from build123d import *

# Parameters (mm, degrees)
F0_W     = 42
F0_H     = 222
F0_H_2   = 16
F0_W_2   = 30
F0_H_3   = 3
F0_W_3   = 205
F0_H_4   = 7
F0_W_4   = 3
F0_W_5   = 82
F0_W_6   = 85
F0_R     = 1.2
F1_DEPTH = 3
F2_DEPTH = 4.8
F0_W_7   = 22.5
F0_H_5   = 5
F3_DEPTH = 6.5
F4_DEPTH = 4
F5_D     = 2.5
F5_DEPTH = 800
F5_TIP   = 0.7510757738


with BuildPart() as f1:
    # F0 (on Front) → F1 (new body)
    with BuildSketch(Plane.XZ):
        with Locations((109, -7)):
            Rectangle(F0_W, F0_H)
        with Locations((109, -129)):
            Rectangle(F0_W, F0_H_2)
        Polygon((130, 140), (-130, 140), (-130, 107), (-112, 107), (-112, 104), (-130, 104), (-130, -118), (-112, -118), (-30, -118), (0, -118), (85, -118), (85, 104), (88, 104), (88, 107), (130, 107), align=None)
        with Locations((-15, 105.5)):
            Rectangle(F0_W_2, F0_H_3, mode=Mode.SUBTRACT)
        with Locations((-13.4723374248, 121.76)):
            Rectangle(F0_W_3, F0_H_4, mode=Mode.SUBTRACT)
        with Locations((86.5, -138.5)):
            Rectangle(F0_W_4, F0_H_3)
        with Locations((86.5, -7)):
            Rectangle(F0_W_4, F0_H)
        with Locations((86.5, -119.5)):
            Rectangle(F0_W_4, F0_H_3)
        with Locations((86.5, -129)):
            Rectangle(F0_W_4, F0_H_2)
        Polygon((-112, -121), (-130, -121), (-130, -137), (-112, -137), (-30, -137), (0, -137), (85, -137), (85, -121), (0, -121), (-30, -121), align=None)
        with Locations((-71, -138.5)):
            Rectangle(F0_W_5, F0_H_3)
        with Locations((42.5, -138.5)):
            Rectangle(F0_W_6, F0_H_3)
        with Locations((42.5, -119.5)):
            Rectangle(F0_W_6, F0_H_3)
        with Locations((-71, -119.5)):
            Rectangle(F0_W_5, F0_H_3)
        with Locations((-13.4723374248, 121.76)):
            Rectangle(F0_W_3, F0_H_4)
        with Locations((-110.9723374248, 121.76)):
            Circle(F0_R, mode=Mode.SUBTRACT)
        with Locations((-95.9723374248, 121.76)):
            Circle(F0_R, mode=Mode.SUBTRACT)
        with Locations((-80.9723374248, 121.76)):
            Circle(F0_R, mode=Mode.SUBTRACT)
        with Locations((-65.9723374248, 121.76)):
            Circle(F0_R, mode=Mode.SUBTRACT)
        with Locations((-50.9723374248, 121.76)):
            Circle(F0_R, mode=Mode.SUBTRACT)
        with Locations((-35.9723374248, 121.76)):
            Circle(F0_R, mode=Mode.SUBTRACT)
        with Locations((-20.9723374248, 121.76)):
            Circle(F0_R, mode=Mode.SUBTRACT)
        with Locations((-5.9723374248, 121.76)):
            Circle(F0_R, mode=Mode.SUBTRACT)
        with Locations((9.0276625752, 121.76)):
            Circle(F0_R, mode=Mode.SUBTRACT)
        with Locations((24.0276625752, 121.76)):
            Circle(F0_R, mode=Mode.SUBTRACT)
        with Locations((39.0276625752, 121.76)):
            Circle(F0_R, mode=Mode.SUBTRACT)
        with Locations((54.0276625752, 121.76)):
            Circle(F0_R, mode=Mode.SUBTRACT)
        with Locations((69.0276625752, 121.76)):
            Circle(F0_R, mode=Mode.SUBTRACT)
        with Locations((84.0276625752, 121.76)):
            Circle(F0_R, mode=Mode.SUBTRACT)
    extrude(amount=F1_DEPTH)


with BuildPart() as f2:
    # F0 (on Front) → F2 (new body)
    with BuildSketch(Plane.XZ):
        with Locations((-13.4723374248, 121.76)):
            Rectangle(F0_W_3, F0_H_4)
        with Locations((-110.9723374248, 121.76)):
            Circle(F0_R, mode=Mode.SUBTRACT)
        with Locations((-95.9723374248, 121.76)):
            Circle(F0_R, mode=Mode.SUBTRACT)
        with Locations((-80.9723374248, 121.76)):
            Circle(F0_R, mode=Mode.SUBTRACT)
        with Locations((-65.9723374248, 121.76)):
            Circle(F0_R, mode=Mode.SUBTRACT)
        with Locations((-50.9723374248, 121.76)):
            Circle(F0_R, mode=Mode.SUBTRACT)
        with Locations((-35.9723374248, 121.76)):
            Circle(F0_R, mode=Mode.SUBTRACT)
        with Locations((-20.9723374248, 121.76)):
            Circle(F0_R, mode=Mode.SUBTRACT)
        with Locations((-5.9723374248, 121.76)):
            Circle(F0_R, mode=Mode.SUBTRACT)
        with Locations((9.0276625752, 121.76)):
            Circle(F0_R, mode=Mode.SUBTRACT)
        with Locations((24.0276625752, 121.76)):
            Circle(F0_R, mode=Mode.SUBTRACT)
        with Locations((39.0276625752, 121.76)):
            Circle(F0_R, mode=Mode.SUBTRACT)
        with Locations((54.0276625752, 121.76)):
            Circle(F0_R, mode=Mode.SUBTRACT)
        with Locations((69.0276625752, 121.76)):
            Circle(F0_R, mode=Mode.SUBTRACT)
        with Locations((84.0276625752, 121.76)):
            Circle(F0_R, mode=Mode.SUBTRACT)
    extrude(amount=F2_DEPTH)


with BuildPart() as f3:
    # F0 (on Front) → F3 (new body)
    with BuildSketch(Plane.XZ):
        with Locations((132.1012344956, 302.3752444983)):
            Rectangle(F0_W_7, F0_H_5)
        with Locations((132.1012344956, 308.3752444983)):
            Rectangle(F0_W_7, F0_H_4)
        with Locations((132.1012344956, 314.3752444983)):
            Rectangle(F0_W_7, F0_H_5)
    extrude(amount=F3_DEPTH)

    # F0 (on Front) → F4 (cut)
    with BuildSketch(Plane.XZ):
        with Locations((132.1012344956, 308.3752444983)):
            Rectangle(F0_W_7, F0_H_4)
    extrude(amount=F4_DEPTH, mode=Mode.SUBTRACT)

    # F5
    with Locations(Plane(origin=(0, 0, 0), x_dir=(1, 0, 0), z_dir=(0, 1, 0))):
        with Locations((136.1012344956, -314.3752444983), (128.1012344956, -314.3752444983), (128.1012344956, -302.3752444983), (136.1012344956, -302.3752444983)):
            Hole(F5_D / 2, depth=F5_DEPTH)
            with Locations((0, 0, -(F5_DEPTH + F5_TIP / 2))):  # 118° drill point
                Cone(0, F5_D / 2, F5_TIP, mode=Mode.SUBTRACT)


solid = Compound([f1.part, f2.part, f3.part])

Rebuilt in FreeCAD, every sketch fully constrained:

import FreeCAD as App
import Part
import Sketcher
from FreeCAD import Vector

doc = App.newDocument("Part")
body = doc.addObject("PartDesign::Body", "Body")

# Sketch on XZ plane
sketch1 = body.newObject("Sketcher::SketchObject", "Sketch")
sketch1.AttachmentSupport = (doc.getObject("XZ_Plane"), [""])
sketch1.MapMode = "FlatFace"
sketch1.addGeometry([
    Part.LineSegment(Vector(130, -118, 0), Vector(130, 104, 0)),  # 0
    Part.LineSegment(Vector(130, 104, 0), Vector(88, 104, 0)),  # 1
    Part.LineSegment(Vector(88, 104, 0), Vector(88, 107, 0)),  # 2
    Part.LineSegment(Vector(88, 107, 0), Vector(130, 107, 0)),  # 3
    Part.LineSegment(Vector(130, 107, 0), Vector(130, 140, 0)),  # 4
    Part.LineSegment(Vector(130, 140, 0), Vector(-130, 140, 0)),  # 5
    Part.LineSegment(Vector(-130, 140, 0), Vector(-130, 107, 0)),  # 6
    Part.LineSegment(Vector(-130, 107, 0), Vector(-112, 107, 0)),  # 7
    Part.LineSegment(Vector(-112, 107, 0), Vector(-112, 104, 0)),  # 8
    Part.LineSegment(Vector(-112, 104, 0), Vector(-130, 104, 0)),  # 9
    Part.LineSegment(Vector(-130, 104, 0), Vector(-130, -118, 0)),  # 10
    Part.LineSegment(Vector(-130, -118, 0), Vector(-112, -118, 0)),  # 11
    Part.LineSegment(Vector(-112, -118, 0), Vector(-112, -121, 0)),  # 12
    Part.LineSegment(Vector(-112, -121, 0), Vector(-130, -121, 0)),  # 13
    Part.LineSegment(Vector(-130, -121, 0), Vector(-130, -137, 0)),  # 14
    Part.LineSegment(Vector(-130, -137, 0), Vector(-112, -137, 0)),  # 15
    Part.LineSegment(Vector(-112, -137, 0), Vector(-112, -140, 0)),  # 16
    Part.LineSegment(Vector(-112, -140, 0), Vector(-30, -140, 0)),  # 17
    Part.LineSegment(Vector(-30, -140, 0), Vector(-30, -137, 0)),  # 18
    Part.LineSegment(Vector(-30, -137, 0), Vector(0, -137, 0)),  # 19
    Part.LineSegment(Vector(0, -137, 0), Vector(0, -140, 0)),  # 20
    Part.LineSegment(Vector(0, -140, 0), Vector(88, -140, 0)),  # 21
    Part.LineSegment(Vector(88, -140, 0), Vector(88, -137, 0)),  # 22
    Part.LineSegment(Vector(88, -137, 0), Vector(130, -137, 0)),  # 23
    Part.LineSegment(Vector(130, -137, 0), Vector(130, -121, 0)),  # 24
    Part.LineSegment(Vector(130, -121, 0), Vector(88, -121, 0)),  # 25
    Part.LineSegment(Vector(88, -121, 0), Vector(88, -118, 0)),  # 26
    Part.LineSegment(Vector(88, -118, 0), Vector(130, -118, 0)),  # 27
    Part.LineSegment(Vector(-30, -118, 0), Vector(0, -118, 0)),  # 28
    Part.LineSegment(Vector(0, -118, 0), Vector(0, -121, 0)),  # 29
    Part.LineSegment(Vector(0, -121, 0), Vector(-30, -121, 0)),  # 30
    Part.LineSegment(Vector(-30, -121, 0), Vector(-30, -118, 0)),  # 31
    Part.Circle(Vector(-110.972337, 121.76, 0), Vector(0, 0, 1), 1.2),  # 32
    Part.Circle(Vector(-95.972337, 121.76, 0), Vector(0, 0, 1), 1.2),  # 33
    Part.Circle(Vector(-80.972337, 121.76, 0), Vector(0, 0, 1), 1.2),  # 34
    Part.Circle(Vector(-65.972337, 121.76, 0), Vector(0, 0, 1), 1.2),  # 35
    Part.Circle(Vector(-50.972337, 121.76, 0), Vector(0, 0, 1), 1.2),  # 36
    Part.LineSegment(Vector(0, 104, 0), Vector(-30, 104, 0)),  # 37
    Part.LineSegment(Vector(-30, 104, 0), Vector(-30, 107, 0)),  # 38
    Part.LineSegment(Vector(-30, 107, 0), Vector(0, 107, 0)),  # 39
    Part.LineSegment(Vector(0, 107, 0), Vector(0, 104, 0)),  # 40
    Part.Circle(Vector(-35.972337, 121.76, 0), Vector(0, 0, 1), 1.2),  # 41
    Part.Circle(Vector(-20.972337, 121.76, 0), Vector(0, 0, 1), 1.2),  # 42
    Part.Circle(Vector(-5.972337, 121.76, 0), Vector(0, 0, 1), 1.2),  # 43
    Part.Circle(Vector(9.027663, 121.76, 0), Vector(0, 0, 1), 1.2),  # 44
    Part.Circle(Vector(24.027663, 121.76, 0), Vector(0, 0, 1), 1.2),  # 45
    Part.Circle(Vector(39.027663, 121.76, 0), Vector(0, 0, 1), 1.2),  # 46
    Part.Circle(Vector(54.027663, 121.76, 0), Vector(0, 0, 1), 1.2),  # 47
    Part.Circle(Vector(69.027663, 121.76, 0), Vector(0, 0, 1), 1.2),  # 48
    Part.Circle(Vector(84.027663, 121.76, 0), Vector(0, 0, 1), 1.2),  # 49
], False)
sketch1.addConstraint([
    Sketcher.Constraint("Coincident", 0, 2, 1, 1),
    Sketcher.Constraint("Coincident", 1, 2, 2, 1),
    Sketcher.Constraint("Coincident", 2, 2, 3, 1),
    Sketcher.Constraint("Coincident", 3, 2, 4, 1),
    Sketcher.Constraint("Coincident", 4, 2, 5, 1),
    Sketcher.Constraint("Coincident", 5, 2, 6, 1),
    Sketcher.Constraint("Coincident", 6, 2, 7, 1),
    Sketcher.Constraint("Coincident", 7, 2, 8, 1),
    Sketcher.Constraint("Coincident", 8, 2, 9, 1),
    Sketcher.Constraint("Coincident", 9, 2, 10, 1),
    Sketcher.Constraint("Coincident", 10, 2, 11, 1),
    Sketcher.Constraint("Coincident", 11, 2, 12, 1),
    Sketcher.Constraint("Coincident", 12, 2, 13, 1),
    Sketcher.Constraint("Coincident", 13, 2, 14, 1),
    Sketcher.Constraint("Coincident", 14, 2, 15, 1),
    Sketcher.Constraint("Coincident", 15, 2, 16, 1),
    Sketcher.Constraint("Coincident", 16, 2, 17, 1),
    Sketcher.Constraint("Coincident", 17, 2, 18, 1),
    Sketcher.Constraint("Coincident", 18, 2, 19, 1),
    Sketcher.Constraint("Coincident", 19, 2, 20, 1),
    Sketcher.Constraint("Coincident", 20, 2, 21, 1),
    Sketcher.Constraint("Coincident", 21, 2, 22, 1),
    Sketcher.Constraint("Coincident", 22, 2, 23, 1),
    Sketcher.Constraint("Coincident", 23, 2, 24, 1),
    Sketcher.Constraint("Coincident", 24, 2, 25, 1),
    Sketcher.Constraint("Coincident", 25, 2, 26, 1),
    Sketcher.Constraint("Coincident", 26, 2, 27, 1),
    Sketcher.Constraint("Coincident", 27, 2, 0, 1),
    Sketcher.Constraint("Coincident", 28, 2, 29, 1),
    Sketcher.Constraint("Coincident", 29, 2, 30, 1),
    Sketcher.Constraint("Coincident", 30, 2, 31, 1),
    Sketcher.Constraint("Coincident", 31, 2, 28, 1),
    Sketcher.Constraint("Coincident", 37, 2, 38, 1),
    Sketcher.Constraint("Coincident", 38, 2, 39, 1),
    Sketcher.Constraint("Coincident", 39, 2, 40, 1),
    Sketcher.Constraint("Coincident", 40, 2, 37, 1),
    Sketcher.Constraint("Vertical", 0),
    Sketcher.Constraint("Horizontal", 1),
    Sketcher.Constraint("Vertical", 2),
    Sketcher.Constraint("Horizontal", 3),
    Sketcher.Constraint("Vertical", 4),
    Sketcher.Constraint("Horizontal", 5),
    Sketcher.Constraint("Vertical", 6),
    Sketcher.Constraint("Horizontal", 7),
    Sketcher.Constraint("Vertical", 8),
    Sketcher.Constraint("Horizontal", 9),
    Sketcher.Constraint("Vertical", 10),
    Sketcher.Constraint("Horizontal", 11),
    Sketcher.Constraint("Vertical", 12),
    Sketcher.Constraint("Horizontal", 13),
    Sketcher.Constraint("Vertical", 14),
    Sketcher.Constraint("Horizontal", 15),
    Sketcher.Constraint("Vertical", 16),
    Sketcher.Constraint("Horizontal", 17),
    Sketcher.Constraint("Vertical", 18),
    Sketcher.Constraint("Horizontal", 19),
    Sketcher.Constraint("Vertical", 20),
    Sketcher.Constraint("Horizontal", 21),
    Sketcher.Constraint("Vertical", 22),
    Sketcher.Constraint("Horizontal", 23),
    Sketcher.Constraint("Vertical", 24),
    Sketcher.Constraint("Horizontal", 25),
    Sketcher.Constraint("Vertical", 26),
    Sketcher.Constraint("Horizontal", 27),
    Sketcher.Constraint("Horizontal", 28),
    Sketcher.Constraint("Vertical", 29),
    Sketcher.Constraint("Horizontal", 30),
    Sketcher.Constraint("Vertical", 31),
    Sketcher.Constraint("Horizontal", 37),
    Sketcher.Constraint("Vertical", 38),
    Sketcher.Constraint("Horizontal", 39),
    Sketcher.Constraint("Vertical", 40),
    Sketcher.Constraint("Equal", 32, 33),
    Sketcher.Constraint("Equal", 33, 34),
    Sketcher.Constraint("Equal", 34, 35),
    Sketcher.Constraint("Equal", 35, 36),
    Sketcher.Constraint("Equal", 36, 41),
    Sketcher.Constraint("Equal", 41, 42),
    Sketcher.Constraint("Equal", 42, 43),
    Sketcher.Constraint("Equal", 43, 44),
    Sketcher.Constraint("Equal", 44, 45),
    Sketcher.Constraint("Equal", 45, 46),
    Sketcher.Constraint("Equal", 46, 47),
    Sketcher.Constraint("Equal", 47, 48),
    Sketcher.Constraint("Equal", 48, 49),
    Sketcher.Constraint("Symmetric", 3, 2, 6, 2, -2),
    Sketcher.Constraint("Symmetric", 0, 2, 9, 2, -2),
    Sketcher.Constraint("Symmetric", 14, 2, 23, 2, -2),
    Sketcher.Constraint("PointOnObject", 19, 2, -2),
    Sketcher.Constraint("PointOnObject", 28, 2, -2),
    Sketcher.Constraint("PointOnObject", 39, 2, -2),
    Sketcher.Constraint("Horizontal", 32, 3, 33, 3),
    Sketcher.Constraint("Horizontal", 33, 3, 34, 3),
    Sketcher.Constraint("Horizontal", 34, 3, 35, 3),
    Sketcher.Constraint("Horizontal", 35, 3, 36, 3),
    Sketcher.Constraint("Horizontal", 36, 3, 41, 3),
    Sketcher.Constraint("Horizontal", 41, 3, 42, 3),
    Sketcher.Constraint("Horizontal", 42, 3, 43, 3),
    Sketcher.Constraint("Horizontal", 43, 3, 44, 3),
    Sketcher.Constraint("Horizontal", 44, 3, 45, 3),
    Sketcher.Constraint("Horizontal", 45, 3, 46, 3),
    Sketcher.Constraint("Horizontal", 46, 3, 47, 3),
    Sketcher.Constraint("Horizontal", 47, 3, 48, 3),
    Sketcher.Constraint("Horizontal", 48, 3, 49, 3),
    Sketcher.Constraint("Horizontal", 15, 2, 18, 2),
    Sketcher.Constraint("Horizontal", 17, 2, 20, 2),
    Sketcher.Constraint("Horizontal", 13, 2, 24, 2),
    Sketcher.Constraint("Horizontal", 11, 2, 26, 2),
    Sketcher.Constraint("Horizontal", 27, 2, 28, 2),
    Sketcher.Constraint("Horizontal", 25, 2, 29, 2),
    Sketcher.Constraint("Horizontal", 9, 2, 37, 2),
    Sketcher.Constraint("Horizontal", 7, 2, 38, 2),
    Sketcher.Constraint("Vertical", 0, 2, 3, 2),
    Sketcher.Constraint("Vertical", 8, 2, 11, 2),
    Sketcher.Constraint("Vertical", 10, 2, 13, 2),
    Sketcher.Constraint("Vertical", 12, 2, 15, 2),
    Sketcher.Constraint("Vertical", 2, 2, 21, 2),
    Sketcher.Constraint("Vertical", 22, 2, 25, 2),
    Sketcher.Constraint("Vertical", 18, 2, 30, 2),
    Sketcher.Constraint("Vertical", 31, 2, 37, 2),
    Sketcher.Constraint("Equal", 8, 12),
    Sketcher.Constraint("Equal", 12, 16),
    Sketcher.Constraint("Diameter", 32, 2.4),
    Sketcher.Constraint("DistanceX", 1, 2, 1, 1, 42.0),
    Sketcher.Constraint("DistanceX", 5, 2, 5, 1, 260.0),
    Sketcher.Constraint("DistanceX", 7, 1, 7, 2, 18.0),
    Sketcher.Constraint("DistanceX", 17, 1, 17, 2, 82.0),
    Sketcher.Constraint("DistanceY", 0, 1, 0, 2, 222.0),
    Sketcher.Constraint("DistanceY", 2, 1, 2, 2, 3.0),
    Sketcher.Constraint("DistanceY", 4, 1, 4, 2, 33.0),
    Sketcher.Constraint("DistanceY", 14, 2, 14, 1, 16.0),
    Sketcher.Constraint("DistanceY", -1, 1, 0, 2, 104.0),
    Sketcher.Constraint("DistanceX", 32, 3, 33, 3, 15.0),
    Sketcher.Constraint("DistanceX", 33, 3, 34, 3, 15.0),
    Sketcher.Constraint("DistanceX", 34, 3, 35, 3, 15.0),
    Sketcher.Constraint("DistanceX", 35, 3, 36, 3, 15.0),
    Sketcher.Constraint("DistanceX", 36, 3, 41, 3, 15.0),
    Sketcher.Constraint("DistanceX", 41, 3, 42, 3, 15.0),
    Sketcher.Constraint("DistanceX", 42, 3, 43, 3, 15.0),
    Sketcher.Constraint("DistanceX", 43, 3, 44, 3, 15.0),
    Sketcher.Constraint("DistanceX", 44, 3, 45, 3, 15.0),
    Sketcher.Constraint("DistanceX", 45, 3, 46, 3, 15.0),
    Sketcher.Constraint("DistanceX", 46, 3, 47, 3, 15.0),
    Sketcher.Constraint("DistanceX", 47, 3, 48, 3, 15.0),
    Sketcher.Constraint("DistanceX", 48, 3, 49, 3, 15.0),
    Sketcher.Constraint("DistanceY", -1, 1, 32, 3, 121.76),
    Sketcher.Constraint("DistanceX", 32, 3, -1, 1, 110.972337),
])
pad1 = body.newObject("PartDesign::Pad", "Pad")
pad1.Profile = sketch1
pad1.Length = 3
body2 = doc.addObject("PartDesign::Body", "Body001")

# Sketch on XZ plane
sketch2 = body2.newObject("Sketcher::SketchObject", "Sketch001")
sketch2.AttachmentSupport = (doc.getObject("XZ_Plane001"), [""])
sketch2.MapMode = "FlatFace"
sketch2.addGeometry([
    Part.LineSegment(Vector(-115.972337, 125.26, 0), Vector(-115.972337, 118.26, 0)),  # 0
    Part.LineSegment(Vector(-115.972337, 118.26, 0), Vector(89.027663, 118.26, 0)),  # 1
    Part.LineSegment(Vector(89.027663, 118.26, 0), Vector(89.027663, 125.26, 0)),  # 2
    Part.LineSegment(Vector(89.027663, 125.26, 0), Vector(-115.972337, 125.26, 0)),  # 3
    Part.Circle(Vector(-110.972337, 121.76, 0), Vector(0, 0, 1), 1.2),  # 4
    Part.Circle(Vector(-95.972337, 121.76, 0), Vector(0, 0, 1), 1.2),  # 5
    Part.Circle(Vector(-80.972337, 121.76, 0), Vector(0, 0, 1), 1.2),  # 6
    Part.Circle(Vector(-65.972337, 121.76, 0), Vector(0, 0, 1), 1.2),  # 7
    Part.Circle(Vector(-50.972337, 121.76, 0), Vector(0, 0, 1), 1.2),  # 8
    Part.Circle(Vector(-35.972337, 121.76, 0), Vector(0, 0, 1), 1.2),  # 9
    Part.Circle(Vector(-20.972337, 121.76, 0), Vector(0, 0, 1), 1.2),  # 10
    Part.Circle(Vector(-5.972337, 121.76, 0), Vector(0, 0, 1), 1.2),  # 11
    Part.Circle(Vector(9.027663, 121.76, 0), Vector(0, 0, 1), 1.2),  # 12
    Part.Circle(Vector(24.027663, 121.76, 0), Vector(0, 0, 1), 1.2),  # 13
    Part.Circle(Vector(39.027663, 121.76, 0), Vector(0, 0, 1), 1.2),  # 14
    Part.Circle(Vector(54.027663, 121.76, 0), Vector(0, 0, 1), 1.2),  # 15
    Part.Circle(Vector(69.027663, 121.76, 0), Vector(0, 0, 1), 1.2),  # 16
    Part.Circle(Vector(84.027663, 121.76, 0), Vector(0, 0, 1), 1.2),  # 17
], False)
sketch2.addConstraint([
    Sketcher.Constraint("Coincident", 0, 2, 1, 1),
    Sketcher.Constraint("Coincident", 1, 2, 2, 1),
    Sketcher.Constraint("Coincident", 2, 2, 3, 1),
    Sketcher.Constraint("Coincident", 3, 2, 0, 1),
    Sketcher.Constraint("Vertical", 0),
    Sketcher.Constraint("Horizontal", 1),
    Sketcher.Constraint("Vertical", 2),
    Sketcher.Constraint("Horizontal", 3),
    Sketcher.Constraint("Equal", 4, 5),
    Sketcher.Constraint("Equal", 5, 6),
    Sketcher.Constraint("Equal", 6, 7),
    Sketcher.Constraint("Equal", 7, 8),
    Sketcher.Constraint("Equal", 8, 9),
    Sketcher.Constraint("Equal", 9, 10),
    Sketcher.Constraint("Equal", 10, 11),
    Sketcher.Constraint("Equal", 11, 12),
    Sketcher.Constraint("Equal", 12, 13),
    Sketcher.Constraint("Equal", 13, 14),
    Sketcher.Constraint("Equal", 14, 15),
    Sketcher.Constraint("Equal", 15, 16),
    Sketcher.Constraint("Equal", 16, 17),
    Sketcher.Constraint("Horizontal", 4, 3, 5, 3),
    Sketcher.Constraint("Horizontal", 5, 3, 6, 3),
    Sketcher.Constraint("Horizontal", 6, 3, 7, 3),
    Sketcher.Constraint("Horizontal", 7, 3, 8, 3),
    Sketcher.Constraint("Horizontal", 8, 3, 9, 3),
    Sketcher.Constraint("Horizontal", 9, 3, 10, 3),
    Sketcher.Constraint("Horizontal", 10, 3, 11, 3),
    Sketcher.Constraint("Horizontal", 11, 3, 12, 3),
    Sketcher.Constraint("Horizontal", 12, 3, 13, 3),
    Sketcher.Constraint("Horizontal", 13, 3, 14, 3),
    Sketcher.Constraint("Horizontal", 14, 3, 15, 3),
    Sketcher.Constraint("Horizontal", 15, 3, 16, 3),
    Sketcher.Constraint("Horizontal", 16, 3, 17, 3),
    Sketcher.Constraint("Diameter", 4, 2.4),
    Sketcher.Constraint("DistanceX", 1, 1, 1, 2, 205.0),
    Sketcher.Constraint("DistanceY", 0, 2, 0, 1, 7.0),
    Sketcher.Constraint("DistanceX", 4, 3, 5, 3, 15.0),
    Sketcher.Constraint("DistanceX", 5, 3, 6, 3, 15.0),
    Sketcher.Constraint("DistanceX", 6, 3, 7, 3, 15.0),
    Sketcher.Constraint("DistanceX", 7, 3, 8, 3, 15.0),
    Sketcher.Constraint("DistanceX", 8, 3, 9, 3, 15.0),
    Sketcher.Constraint("DistanceX", 9, 3, 10, 3, 15.0),
    Sketcher.Constraint("DistanceX", 10, 3, 11, 3, 15.0),
    Sketcher.Constraint("DistanceX", 11, 3, 12, 3, 15.0),
    Sketcher.Constraint("DistanceX", 12, 3, 13, 3, 15.0),
    Sketcher.Constraint("DistanceX", 13, 3, 14, 3, 15.0),
    Sketcher.Constraint("DistanceX", 14, 3, 15, 3, 15.0),
    Sketcher.Constraint("DistanceX", 15, 3, 16, 3, 15.0),
    Sketcher.Constraint("DistanceX", 16, 3, 17, 3, 15.0),
    Sketcher.Constraint("DistanceX", 0, 2, 4, 3, 5.0),
    Sketcher.Constraint("DistanceY", 0, 2, 4, 3, 3.5),
    Sketcher.Constraint("DistanceY", -1, 1, 4, 3, 121.76),
    Sketcher.Constraint("DistanceX", 4, 3, -1, 1, 110.972337),
])
pad2 = body2.newObject("PartDesign::Pad", "Pad001")
pad2.Profile = sketch2
pad2.Length = 4.8
body3 = doc.addObject("PartDesign::Body", "Body002")

# Sketch on XZ plane
sketch3 = body3.newObject("Sketcher::SketchObject", "Sketch002")
sketch3.AttachmentSupport = (doc.getObject("XZ_Plane002"), [""])
sketch3.MapMode = "FlatFace"
sketch3.addGeometry([
    Part.LineSegment(Vector(120.851234, 299.875244, 0), Vector(143.351234, 299.875244, 0)),
    Part.LineSegment(Vector(143.351234, 299.875244, 0), Vector(143.351234, 316.875244, 0)),
    Part.LineSegment(Vector(143.351234, 316.875244, 0), Vector(120.851234, 316.875244, 0)),
    Part.LineSegment(Vector(120.851234, 316.875244, 0), Vector(120.851234, 299.875244, 0)),
], False)
sketch3.addConstraint([
    Sketcher.Constraint("Coincident", 0, 2, 1, 1),
    Sketcher.Constraint("Coincident", 1, 2, 2, 1),
    Sketcher.Constraint("Coincident", 2, 2, 3, 1),
    Sketcher.Constraint("Coincident", 3, 2, 0, 1),
    Sketcher.Constraint("Horizontal", 0),
    Sketcher.Constraint("Vertical", 1),
    Sketcher.Constraint("Horizontal", 2),
    Sketcher.Constraint("Vertical", 3),
    Sketcher.Constraint("DistanceY", 1, 1, 1, 2, 17.0),
    Sketcher.Constraint("DistanceX", 0, 1, 0, 2, 22.5),
    Sketcher.Constraint("DistanceX", -1, 1, 0, 2, 143.351234),
    Sketcher.Constraint("DistanceY", -1, 1, 0, 2, 299.875244),
])
pad3 = body3.newObject("PartDesign::Pad", "Pad002")
pad3.Profile = sketch3
pad3.Length = 6.5

# Sketch on XZ plane
sketch4 = body3.newObject("Sketcher::SketchObject", "Sketch003")
sketch4.AttachmentSupport = (doc.getObject("XZ_Plane002"), [""])
sketch4.MapMode = "FlatFace"
sketch4.addGeometry([
    Part.LineSegment(Vector(120.851234, 311.875244, 0), Vector(120.851234, 304.875244, 0)),
    Part.LineSegment(Vector(120.851234, 304.875244, 0), Vector(143.351234, 304.875244, 0)),
    Part.LineSegment(Vector(143.351234, 304.875244, 0), Vector(143.351234, 311.875244, 0)),
    Part.LineSegment(Vector(143.351234, 311.875244, 0), Vector(120.851234, 311.875244, 0)),
], False)
sketch4.addConstraint([
    Sketcher.Constraint("Coincident", 0, 2, 1, 1),
    Sketcher.Constraint("Coincident", 1, 2, 2, 1),
    Sketcher.Constraint("Coincident", 2, 2, 3, 1),
    Sketcher.Constraint("Coincident", 3, 2, 0, 1),
    Sketcher.Constraint("Vertical", 0),
    Sketcher.Constraint("Horizontal", 1),
    Sketcher.Constraint("Vertical", 2),
    Sketcher.Constraint("Horizontal", 3),
    Sketcher.Constraint("DistanceY", 0, 2, 0, 1, 7.0),
    Sketcher.Constraint("DistanceX", 1, 1, 1, 2, 22.5),
    Sketcher.Constraint("DistanceX", -1, 1, 0, 2, 120.851234),
    Sketcher.Constraint("DistanceY", -1, 1, 0, 2, 304.875244),
])
pocket1 = body3.newObject("PartDesign::Pocket", "Pocket")
pocket1.Profile = sketch4
pocket1.Length = 4
pocket1.Reversed = True

# Sketch on XZ plane
sketch5 = body3.newObject("Sketcher::SketchObject", "Sketch004")
sketch5.AttachmentSupport = (doc.getObject("XZ_Plane002"), [""])
sketch5.MapMode = "FlatFace"
sketch5.addGeometry([
    Part.Circle(Vector(136.101234, 314.375244, 0), Vector(0, 0, 1), 1.25),
    Part.Circle(Vector(128.101234, 314.375244, 0), Vector(0, 0, 1), 1.25),
    Part.Circle(Vector(128.101234, 302.375244, 0), Vector(0, 0, 1), 1.25),
    Part.Circle(Vector(136.101234, 302.375244, 0), Vector(0, 0, 1), 1.25),
], False)
sketch5.addConstraint([
    Sketcher.Constraint("Equal", 0, 1),
    Sketcher.Constraint("Equal", 1, 2),
    Sketcher.Constraint("Equal", 2, 3),
    Sketcher.Constraint("Horizontal", 0, 3, 1, 3),
    Sketcher.Constraint("Horizontal", 2, 3, 3, 3),
    Sketcher.Constraint("Vertical", 1, 3, 2, 3),
    Sketcher.Constraint("Vertical", 0, 3, 3, 3),
    Sketcher.Constraint("Diameter", 0, 2.5),
    Sketcher.Constraint("DistanceX", 1, 3, 0, 3, 8.0),
    Sketcher.Constraint("DistanceY", 2, 3, 1, 3, 12.0),
    Sketcher.Constraint("DistanceX", -1, 1, 0, 3, 136.101234),
    Sketcher.Constraint("DistanceY", -1, 1, 0, 3, 314.375244),
])
doc.recompute()
hole = body3.newObject("PartDesign::Hole", "Hole")
hole.Profile = sketch5
hole.ThreadType = "None"
hole.Diameter = 2.5
hole.DepthType = "Dimension"
hole.Depth = 800
hole.DrillPoint = "Angled"
hole.DrillPointAngle = 118
hole.Reversed = True

doc.recompute()
